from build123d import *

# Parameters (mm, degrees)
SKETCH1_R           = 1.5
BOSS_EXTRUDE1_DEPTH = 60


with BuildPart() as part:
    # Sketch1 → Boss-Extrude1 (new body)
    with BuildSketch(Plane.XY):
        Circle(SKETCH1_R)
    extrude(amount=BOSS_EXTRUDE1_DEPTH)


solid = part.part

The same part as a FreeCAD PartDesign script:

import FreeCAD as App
import Part
import Sketcher

V = App.Vector

doc = App.newDocument("Part")
params = doc.addObject("Spreadsheet::Sheet", "Params")
for row, (alias, value) in enumerate([
    ("sketch1_diameter", "3 mm"),
    ("pad1_length", "60 mm"),
], start=1):
    params.set(f"A{row}", alias)
    params.set(f"B{row}", "=" + value)
    params.setAlias(f"B{row}", alias)

body = doc.addObject("PartDesign::Body", "Body")

# Sketch on XY plane
sketch1 = doc.addObject("Sketcher::SketchObject", "Sketch")
body.addObject(sketch1)
sketch1.AttachmentSupport = (doc.XY_Plane, [""])
sketch1.MapMode = "FlatFace"
sketch1.addGeometry(Part.Circle(V(0, 0, 0), V(0, 0, 1), 1.5), False)
sketch1.addConstraint(Sketcher.Constraint("Coincident", 0, 3, -1, 1))
sketch1.addConstraint(Sketcher.Constraint("Diameter", 0, 3.0))
sketch1.setExpression("Constraints[1]", "Params.sketch1_diameter")
pad1 = doc.addObject("PartDesign::Pad", "Pad")
body.addObject(pad1)
pad1.Profile = sketch1
pad1.setExpression("Length", "Params.pad1_length")

doc.recompute()
